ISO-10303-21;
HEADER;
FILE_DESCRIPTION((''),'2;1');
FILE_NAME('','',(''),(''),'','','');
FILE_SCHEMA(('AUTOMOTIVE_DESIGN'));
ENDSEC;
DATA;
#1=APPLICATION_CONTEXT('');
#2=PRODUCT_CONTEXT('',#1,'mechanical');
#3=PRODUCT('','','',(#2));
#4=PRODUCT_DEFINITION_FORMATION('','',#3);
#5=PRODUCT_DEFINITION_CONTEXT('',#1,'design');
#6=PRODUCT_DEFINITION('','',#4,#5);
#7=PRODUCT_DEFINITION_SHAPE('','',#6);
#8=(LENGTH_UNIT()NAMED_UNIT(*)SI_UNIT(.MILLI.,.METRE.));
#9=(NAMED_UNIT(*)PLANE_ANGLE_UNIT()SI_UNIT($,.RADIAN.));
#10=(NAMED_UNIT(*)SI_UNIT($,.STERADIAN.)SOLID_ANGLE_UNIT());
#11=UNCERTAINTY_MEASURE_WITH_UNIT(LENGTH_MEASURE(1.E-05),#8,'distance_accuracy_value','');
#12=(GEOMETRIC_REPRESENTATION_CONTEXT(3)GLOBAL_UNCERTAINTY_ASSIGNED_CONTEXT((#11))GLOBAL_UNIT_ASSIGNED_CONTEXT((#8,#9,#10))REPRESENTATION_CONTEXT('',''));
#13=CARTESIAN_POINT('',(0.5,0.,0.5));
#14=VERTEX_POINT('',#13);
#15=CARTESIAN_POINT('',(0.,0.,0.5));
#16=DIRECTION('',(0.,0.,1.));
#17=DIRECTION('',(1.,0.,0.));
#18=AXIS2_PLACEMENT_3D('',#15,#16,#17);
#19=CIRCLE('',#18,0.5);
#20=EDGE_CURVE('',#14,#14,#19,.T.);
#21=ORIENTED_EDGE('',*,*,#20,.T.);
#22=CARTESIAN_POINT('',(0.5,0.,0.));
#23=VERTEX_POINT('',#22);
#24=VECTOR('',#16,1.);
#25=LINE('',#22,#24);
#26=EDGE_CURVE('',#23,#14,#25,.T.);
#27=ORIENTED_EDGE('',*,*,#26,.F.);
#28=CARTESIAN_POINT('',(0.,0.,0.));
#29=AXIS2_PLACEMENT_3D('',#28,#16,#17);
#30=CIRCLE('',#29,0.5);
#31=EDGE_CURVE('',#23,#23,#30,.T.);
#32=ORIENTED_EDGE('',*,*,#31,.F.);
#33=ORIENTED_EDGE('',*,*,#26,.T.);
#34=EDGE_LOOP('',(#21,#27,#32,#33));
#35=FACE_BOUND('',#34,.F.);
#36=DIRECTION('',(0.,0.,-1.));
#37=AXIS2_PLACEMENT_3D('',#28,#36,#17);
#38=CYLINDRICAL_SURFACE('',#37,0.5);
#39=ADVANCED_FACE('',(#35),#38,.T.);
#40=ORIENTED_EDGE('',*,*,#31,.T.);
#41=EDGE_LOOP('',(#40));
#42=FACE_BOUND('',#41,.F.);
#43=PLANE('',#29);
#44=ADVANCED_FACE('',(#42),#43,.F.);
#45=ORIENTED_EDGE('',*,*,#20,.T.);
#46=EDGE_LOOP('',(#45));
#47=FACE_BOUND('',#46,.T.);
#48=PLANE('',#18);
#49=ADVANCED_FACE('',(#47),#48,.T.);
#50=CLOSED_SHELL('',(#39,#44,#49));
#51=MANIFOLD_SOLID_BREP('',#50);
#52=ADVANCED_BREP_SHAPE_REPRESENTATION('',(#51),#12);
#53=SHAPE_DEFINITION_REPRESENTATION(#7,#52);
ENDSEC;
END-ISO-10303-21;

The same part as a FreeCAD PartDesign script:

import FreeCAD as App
import Part
import Sketcher
from FreeCAD import Vector

doc = App.newDocument("Part")
body = doc.addObject("PartDesign::Body", "Body")

sketch1 = doc.addObject("Sketcher::SketchObject", "Sketch")
body.addObject(sketch1)
sketch1.AttachmentSupport = (doc.XY_Plane, [""])
sketch1.MapMode = "FlatFace"
sketch1.addGeometry(Part.Circle(Vector(0, 0, 0), Vector(0, 0, 1), 0.5), False)
sketch1.addConstraint([
    Sketcher.Constraint("Coincident", 0, 3, -1, 1),
    Sketcher.Constraint("Diameter", 0, 1.0),
])
pad1 = doc.addObject("PartDesign::Pad", "Pad")
body.addObject(pad1)
pad1.Profile = sketch1
pad1.Length = 0.5

doc.recompute()
